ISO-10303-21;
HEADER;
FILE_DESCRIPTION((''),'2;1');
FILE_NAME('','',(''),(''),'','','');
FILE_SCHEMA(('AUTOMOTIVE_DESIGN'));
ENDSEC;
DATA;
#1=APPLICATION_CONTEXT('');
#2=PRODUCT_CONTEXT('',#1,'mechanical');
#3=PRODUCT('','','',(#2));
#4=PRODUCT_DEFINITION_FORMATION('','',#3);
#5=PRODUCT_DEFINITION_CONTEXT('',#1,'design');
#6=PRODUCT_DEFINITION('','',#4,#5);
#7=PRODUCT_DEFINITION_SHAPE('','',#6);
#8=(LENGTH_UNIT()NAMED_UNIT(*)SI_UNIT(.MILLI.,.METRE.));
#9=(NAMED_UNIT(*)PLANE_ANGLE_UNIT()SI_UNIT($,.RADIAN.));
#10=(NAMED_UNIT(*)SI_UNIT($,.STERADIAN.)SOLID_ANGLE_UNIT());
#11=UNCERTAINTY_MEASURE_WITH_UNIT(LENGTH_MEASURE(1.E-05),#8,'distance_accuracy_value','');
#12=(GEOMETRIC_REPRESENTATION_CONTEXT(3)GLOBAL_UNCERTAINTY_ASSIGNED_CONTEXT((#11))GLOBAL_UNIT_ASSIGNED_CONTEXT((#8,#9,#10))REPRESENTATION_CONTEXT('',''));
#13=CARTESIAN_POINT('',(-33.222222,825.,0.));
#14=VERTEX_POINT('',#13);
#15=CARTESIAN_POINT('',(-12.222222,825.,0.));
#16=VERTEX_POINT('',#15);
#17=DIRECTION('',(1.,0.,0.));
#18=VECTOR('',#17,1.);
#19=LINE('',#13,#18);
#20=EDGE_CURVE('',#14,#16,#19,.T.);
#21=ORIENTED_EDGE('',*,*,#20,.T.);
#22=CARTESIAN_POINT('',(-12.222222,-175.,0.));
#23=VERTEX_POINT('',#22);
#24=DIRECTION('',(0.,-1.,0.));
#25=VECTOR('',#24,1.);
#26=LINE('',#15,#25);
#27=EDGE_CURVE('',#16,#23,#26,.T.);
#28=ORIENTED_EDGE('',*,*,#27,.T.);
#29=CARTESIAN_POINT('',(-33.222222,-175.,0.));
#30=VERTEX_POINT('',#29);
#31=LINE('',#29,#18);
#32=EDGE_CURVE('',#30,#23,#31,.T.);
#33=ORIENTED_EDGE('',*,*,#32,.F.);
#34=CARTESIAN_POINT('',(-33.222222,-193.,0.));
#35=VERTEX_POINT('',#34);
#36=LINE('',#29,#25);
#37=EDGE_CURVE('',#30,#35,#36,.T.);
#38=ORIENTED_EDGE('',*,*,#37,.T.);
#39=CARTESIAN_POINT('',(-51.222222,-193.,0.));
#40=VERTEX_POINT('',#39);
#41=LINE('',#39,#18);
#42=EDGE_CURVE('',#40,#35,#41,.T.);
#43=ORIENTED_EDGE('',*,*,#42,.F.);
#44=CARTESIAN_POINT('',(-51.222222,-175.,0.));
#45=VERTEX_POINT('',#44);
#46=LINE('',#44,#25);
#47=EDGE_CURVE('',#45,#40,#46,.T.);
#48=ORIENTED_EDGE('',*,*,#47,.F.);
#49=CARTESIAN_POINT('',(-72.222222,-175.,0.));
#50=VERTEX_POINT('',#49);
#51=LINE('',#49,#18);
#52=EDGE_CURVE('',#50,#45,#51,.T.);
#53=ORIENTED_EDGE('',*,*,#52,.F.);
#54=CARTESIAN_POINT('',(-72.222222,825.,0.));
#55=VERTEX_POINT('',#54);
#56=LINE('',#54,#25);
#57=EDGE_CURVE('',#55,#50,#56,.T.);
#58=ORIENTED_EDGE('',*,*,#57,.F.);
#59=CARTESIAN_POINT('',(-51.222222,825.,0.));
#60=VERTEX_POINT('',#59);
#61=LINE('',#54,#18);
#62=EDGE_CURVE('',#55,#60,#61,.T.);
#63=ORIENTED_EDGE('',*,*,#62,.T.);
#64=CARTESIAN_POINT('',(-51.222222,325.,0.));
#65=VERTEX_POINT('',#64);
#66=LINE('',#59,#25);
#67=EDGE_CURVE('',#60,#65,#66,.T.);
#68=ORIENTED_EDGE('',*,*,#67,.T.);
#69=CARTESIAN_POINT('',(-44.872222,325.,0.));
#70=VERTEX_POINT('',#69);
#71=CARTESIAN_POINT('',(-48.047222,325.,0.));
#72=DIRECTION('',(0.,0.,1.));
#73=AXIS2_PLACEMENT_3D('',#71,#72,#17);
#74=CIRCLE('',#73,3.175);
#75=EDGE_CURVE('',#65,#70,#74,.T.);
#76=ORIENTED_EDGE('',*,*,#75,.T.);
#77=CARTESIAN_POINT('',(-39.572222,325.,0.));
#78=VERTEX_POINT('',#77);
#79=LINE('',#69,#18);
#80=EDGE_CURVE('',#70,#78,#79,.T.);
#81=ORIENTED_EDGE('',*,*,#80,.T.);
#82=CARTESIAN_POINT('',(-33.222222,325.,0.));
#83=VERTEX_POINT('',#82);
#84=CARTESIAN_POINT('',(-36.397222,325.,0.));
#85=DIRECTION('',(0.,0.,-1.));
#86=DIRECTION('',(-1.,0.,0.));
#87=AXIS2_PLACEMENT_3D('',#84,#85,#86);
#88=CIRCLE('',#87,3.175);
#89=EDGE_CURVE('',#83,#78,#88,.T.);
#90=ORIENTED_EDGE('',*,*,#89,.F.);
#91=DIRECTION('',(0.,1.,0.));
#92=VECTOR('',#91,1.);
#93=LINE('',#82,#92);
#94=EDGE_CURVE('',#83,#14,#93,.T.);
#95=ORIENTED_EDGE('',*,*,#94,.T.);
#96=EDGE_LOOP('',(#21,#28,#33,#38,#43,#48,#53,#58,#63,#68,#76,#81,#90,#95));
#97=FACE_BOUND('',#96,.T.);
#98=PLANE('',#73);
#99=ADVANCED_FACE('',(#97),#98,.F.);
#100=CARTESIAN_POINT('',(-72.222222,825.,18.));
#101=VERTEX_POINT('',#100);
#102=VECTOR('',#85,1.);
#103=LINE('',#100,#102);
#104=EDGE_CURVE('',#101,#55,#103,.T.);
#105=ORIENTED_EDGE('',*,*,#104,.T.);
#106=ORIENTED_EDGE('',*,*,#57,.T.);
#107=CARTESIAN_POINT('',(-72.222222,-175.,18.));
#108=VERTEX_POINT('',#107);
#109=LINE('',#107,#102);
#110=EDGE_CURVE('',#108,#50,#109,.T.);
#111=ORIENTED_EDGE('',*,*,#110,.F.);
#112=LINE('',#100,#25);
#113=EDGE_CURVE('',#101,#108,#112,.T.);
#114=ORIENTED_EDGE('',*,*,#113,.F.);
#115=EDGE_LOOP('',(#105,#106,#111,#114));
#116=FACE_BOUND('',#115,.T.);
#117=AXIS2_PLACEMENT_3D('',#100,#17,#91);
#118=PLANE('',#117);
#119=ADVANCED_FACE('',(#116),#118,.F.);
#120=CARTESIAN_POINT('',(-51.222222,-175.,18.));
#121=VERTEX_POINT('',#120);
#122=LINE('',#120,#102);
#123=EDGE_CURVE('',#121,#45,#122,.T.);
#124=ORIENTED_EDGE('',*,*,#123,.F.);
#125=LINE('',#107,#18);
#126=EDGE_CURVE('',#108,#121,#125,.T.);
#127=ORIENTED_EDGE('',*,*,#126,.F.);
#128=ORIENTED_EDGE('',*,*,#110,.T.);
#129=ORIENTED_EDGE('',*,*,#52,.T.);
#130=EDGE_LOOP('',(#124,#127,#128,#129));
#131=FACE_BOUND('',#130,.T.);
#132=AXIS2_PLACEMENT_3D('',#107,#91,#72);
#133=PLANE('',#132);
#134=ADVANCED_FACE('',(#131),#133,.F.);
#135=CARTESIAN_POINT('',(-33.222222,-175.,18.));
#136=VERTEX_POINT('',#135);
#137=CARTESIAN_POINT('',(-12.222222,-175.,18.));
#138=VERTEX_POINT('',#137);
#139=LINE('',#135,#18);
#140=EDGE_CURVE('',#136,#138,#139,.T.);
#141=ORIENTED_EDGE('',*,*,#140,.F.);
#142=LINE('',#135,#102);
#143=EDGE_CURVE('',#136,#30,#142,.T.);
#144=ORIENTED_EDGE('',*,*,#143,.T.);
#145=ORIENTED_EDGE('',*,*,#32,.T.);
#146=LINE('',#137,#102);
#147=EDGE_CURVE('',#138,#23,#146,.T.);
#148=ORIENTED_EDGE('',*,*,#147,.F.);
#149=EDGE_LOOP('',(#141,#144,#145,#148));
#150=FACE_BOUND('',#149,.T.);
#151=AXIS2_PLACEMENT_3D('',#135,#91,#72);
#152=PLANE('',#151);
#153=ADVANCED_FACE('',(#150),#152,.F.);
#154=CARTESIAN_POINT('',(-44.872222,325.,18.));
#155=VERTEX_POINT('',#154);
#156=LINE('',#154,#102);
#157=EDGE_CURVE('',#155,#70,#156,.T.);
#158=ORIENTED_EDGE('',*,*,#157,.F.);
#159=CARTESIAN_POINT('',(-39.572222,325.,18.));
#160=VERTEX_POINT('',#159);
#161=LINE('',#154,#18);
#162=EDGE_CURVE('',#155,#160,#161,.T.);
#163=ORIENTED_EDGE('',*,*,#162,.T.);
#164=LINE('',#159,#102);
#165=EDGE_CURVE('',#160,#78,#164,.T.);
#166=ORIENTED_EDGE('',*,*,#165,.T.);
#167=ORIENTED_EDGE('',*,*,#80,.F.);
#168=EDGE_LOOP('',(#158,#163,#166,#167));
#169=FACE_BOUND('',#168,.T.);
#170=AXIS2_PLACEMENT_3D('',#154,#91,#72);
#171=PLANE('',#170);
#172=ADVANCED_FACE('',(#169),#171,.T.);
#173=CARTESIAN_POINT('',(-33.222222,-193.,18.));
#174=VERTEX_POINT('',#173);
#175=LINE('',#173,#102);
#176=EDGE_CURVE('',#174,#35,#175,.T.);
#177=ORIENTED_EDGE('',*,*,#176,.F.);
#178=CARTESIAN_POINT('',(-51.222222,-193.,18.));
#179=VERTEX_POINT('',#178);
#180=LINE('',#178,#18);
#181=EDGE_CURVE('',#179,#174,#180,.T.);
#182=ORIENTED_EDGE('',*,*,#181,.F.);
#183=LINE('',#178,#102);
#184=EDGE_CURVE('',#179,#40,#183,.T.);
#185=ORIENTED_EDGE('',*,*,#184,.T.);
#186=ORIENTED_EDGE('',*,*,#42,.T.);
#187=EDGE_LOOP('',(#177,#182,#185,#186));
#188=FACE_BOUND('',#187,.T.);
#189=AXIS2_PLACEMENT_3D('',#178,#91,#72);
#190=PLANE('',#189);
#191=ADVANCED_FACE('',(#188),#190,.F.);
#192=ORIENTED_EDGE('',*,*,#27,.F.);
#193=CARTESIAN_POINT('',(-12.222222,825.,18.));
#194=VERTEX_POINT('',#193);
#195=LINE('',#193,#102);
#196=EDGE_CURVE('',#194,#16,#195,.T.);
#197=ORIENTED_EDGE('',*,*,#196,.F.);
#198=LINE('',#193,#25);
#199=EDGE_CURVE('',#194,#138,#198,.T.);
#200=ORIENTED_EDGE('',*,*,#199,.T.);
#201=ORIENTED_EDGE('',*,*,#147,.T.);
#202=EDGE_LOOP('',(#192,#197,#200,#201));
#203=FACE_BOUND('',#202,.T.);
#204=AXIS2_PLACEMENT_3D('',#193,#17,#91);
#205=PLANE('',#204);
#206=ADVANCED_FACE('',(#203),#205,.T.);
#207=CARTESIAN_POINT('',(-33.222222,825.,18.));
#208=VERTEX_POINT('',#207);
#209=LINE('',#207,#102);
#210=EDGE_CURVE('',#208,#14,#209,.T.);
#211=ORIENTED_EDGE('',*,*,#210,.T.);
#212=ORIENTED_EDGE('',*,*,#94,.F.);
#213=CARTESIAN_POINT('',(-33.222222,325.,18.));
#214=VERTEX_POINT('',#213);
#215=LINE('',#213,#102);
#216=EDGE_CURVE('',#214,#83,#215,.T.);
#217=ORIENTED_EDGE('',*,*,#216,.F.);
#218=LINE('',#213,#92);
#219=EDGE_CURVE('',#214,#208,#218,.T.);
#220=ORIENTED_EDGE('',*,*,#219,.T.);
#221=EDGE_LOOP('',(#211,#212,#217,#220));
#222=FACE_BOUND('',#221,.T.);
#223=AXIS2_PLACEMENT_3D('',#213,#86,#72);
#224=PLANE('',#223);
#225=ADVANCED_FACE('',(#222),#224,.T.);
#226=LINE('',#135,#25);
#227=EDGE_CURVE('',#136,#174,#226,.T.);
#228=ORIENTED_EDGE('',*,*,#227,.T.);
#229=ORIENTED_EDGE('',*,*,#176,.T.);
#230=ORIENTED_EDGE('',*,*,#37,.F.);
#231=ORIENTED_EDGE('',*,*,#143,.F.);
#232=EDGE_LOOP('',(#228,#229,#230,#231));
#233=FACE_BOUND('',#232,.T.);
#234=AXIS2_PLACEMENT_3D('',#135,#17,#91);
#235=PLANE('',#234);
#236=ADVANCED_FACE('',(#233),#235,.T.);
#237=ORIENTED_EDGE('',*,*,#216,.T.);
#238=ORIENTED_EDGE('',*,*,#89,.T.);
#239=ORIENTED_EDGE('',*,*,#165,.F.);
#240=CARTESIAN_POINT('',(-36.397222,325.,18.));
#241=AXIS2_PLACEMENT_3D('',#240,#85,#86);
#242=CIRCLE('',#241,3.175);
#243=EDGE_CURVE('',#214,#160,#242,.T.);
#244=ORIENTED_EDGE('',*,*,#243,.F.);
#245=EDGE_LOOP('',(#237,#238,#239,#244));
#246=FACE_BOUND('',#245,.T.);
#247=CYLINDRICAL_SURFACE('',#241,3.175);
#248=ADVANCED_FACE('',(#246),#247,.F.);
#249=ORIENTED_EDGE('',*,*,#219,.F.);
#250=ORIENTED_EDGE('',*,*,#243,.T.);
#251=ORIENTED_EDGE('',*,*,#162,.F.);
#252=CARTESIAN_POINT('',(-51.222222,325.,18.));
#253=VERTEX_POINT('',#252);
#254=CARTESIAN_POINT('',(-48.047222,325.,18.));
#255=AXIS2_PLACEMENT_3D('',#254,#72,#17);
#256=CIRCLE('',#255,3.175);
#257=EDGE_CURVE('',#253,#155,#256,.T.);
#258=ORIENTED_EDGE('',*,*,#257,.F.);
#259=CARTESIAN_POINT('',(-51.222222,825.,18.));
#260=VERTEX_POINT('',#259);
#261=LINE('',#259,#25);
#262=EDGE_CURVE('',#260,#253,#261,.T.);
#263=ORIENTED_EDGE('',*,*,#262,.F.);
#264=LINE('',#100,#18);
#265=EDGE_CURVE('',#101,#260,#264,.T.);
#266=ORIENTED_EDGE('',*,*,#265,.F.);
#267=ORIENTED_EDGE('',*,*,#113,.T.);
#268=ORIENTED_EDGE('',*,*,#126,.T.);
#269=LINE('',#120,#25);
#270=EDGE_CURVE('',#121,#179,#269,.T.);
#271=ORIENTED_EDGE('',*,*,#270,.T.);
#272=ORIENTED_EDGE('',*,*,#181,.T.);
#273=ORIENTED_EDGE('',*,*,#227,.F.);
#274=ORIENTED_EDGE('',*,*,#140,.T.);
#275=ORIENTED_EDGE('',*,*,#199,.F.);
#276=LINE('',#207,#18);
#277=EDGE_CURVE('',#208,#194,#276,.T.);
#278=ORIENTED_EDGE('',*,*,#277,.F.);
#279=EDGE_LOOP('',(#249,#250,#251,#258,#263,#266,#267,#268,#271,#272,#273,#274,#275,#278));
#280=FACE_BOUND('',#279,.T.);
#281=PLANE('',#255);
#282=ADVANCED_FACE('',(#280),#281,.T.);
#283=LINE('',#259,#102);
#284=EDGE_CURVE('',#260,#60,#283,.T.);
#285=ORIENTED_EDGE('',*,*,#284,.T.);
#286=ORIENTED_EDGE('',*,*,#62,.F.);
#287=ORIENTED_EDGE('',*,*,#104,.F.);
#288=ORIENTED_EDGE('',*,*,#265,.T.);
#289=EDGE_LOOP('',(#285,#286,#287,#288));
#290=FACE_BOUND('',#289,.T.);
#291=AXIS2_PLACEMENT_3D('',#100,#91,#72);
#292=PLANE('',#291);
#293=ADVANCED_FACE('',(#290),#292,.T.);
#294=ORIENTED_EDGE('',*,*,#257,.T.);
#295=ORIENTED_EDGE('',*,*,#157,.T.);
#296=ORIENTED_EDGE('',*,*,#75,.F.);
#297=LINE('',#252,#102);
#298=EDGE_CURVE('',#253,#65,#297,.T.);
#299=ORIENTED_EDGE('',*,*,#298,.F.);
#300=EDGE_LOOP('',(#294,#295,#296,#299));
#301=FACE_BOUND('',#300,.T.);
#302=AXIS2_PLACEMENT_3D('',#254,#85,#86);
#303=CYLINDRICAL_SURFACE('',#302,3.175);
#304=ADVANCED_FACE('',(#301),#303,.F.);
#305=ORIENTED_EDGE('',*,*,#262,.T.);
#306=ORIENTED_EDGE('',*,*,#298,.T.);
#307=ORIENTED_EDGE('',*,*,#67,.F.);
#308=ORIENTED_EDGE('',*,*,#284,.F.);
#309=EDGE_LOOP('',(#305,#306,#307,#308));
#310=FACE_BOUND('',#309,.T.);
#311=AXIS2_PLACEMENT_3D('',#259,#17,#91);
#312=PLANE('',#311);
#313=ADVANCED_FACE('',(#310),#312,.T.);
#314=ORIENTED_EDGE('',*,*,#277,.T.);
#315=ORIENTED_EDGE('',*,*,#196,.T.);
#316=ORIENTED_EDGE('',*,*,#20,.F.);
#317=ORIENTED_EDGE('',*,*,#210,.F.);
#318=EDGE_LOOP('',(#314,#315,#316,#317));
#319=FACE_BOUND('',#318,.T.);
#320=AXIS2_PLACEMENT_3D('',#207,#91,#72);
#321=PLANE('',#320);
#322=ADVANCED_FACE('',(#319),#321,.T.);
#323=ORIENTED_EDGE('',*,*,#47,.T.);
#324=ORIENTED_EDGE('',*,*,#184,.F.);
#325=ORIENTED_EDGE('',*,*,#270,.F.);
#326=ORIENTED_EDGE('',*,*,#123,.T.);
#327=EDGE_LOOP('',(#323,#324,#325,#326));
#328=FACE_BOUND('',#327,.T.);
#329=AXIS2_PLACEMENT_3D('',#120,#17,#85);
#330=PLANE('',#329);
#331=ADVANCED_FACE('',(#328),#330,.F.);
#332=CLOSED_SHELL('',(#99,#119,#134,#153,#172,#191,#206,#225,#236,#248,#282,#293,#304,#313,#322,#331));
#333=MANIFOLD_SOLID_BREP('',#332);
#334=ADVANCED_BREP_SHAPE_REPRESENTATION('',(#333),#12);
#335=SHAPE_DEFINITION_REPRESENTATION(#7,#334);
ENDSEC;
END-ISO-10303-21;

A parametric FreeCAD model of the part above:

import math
import FreeCAD as App
import Part
import Sketcher
from FreeCAD import Vector

doc = App.newDocument("Part")
body = doc.addObject("PartDesign::Body", "Body")

sketch1 = doc.addObject("Sketcher::SketchObject", "Sketch")
body.addObject(sketch1)
sketch1.AttachmentSupport = (doc.XY_Plane, [""])
sketch1.MapMode = "FlatFace"
sketch1.addGeometry([
    Part.LineSegment(Vector(-51.222222, 325, 0), Vector(-51.222222, 825, 0)),
    Part.LineSegment(Vector(-51.222222, 825, 0), Vector(-72.222222, 825, 0)),
    Part.LineSegment(Vector(-72.222222, 825, 0), Vector(-72.222222, -175, 0)),
    Part.LineSegment(Vector(-72.222222, -175, 0), Vector(-51.222222, -175, 0)),
    Part.LineSegment(Vector(-51.222222, -175, 0), Vector(-51.222222, -193, 0)),
    Part.LineSegment(Vector(-51.222222, -193, 0), Vector(-33.222222, -193, 0)),
    Part.LineSegment(Vector(-33.222222, -193, 0), Vector(-33.222222, -175, 0)),
    Part.LineSegment(Vector(-33.222222, -175, 0), Vector(-12.222222, -175, 0)),
    Part.LineSegment(Vector(-12.222222, -175, 0), Vector(-12.222222, 825, 0)),
    Part.LineSegment(Vector(-12.222222, 825, 0), Vector(-33.222222, 825, 0)),
    Part.LineSegment(Vector(-33.222222, 825, 0), Vector(-33.222222, 325, 0)),
    Part.ArcOfCircle(Part.Circle(Vector(-36.397222, 325, 0), Vector(0, 0, 1), 3.175), math.radians(180), math.radians(360)),
    Part.LineSegment(Vector(-39.572222, 325, 0), Vector(-44.872222, 325, 0)),
    Part.ArcOfCircle(Part.Circle(Vector(-48.047222, 325, 0), Vector(0, 0, 1), 3.175), math.radians(180), math.radians(360)),
], False)
sketch1.addConstraint([
    Sketcher.Constraint("Coincident", 0, 2, 1, 1),
    Sketcher.Constraint("Coincident", 1, 2, 2, 1),
    Sketcher.Constraint("Coincident", 2, 2, 3, 1),
    Sketcher.Constraint("Coincident", 3, 2, 4, 1),
    Sketcher.Constraint("Coincident", 4, 2, 5, 1),
    Sketcher.Constraint("Coincident", 5, 2, 6, 1),
    Sketcher.Constraint("Coincident", 6, 2, 7, 1),
    Sketcher.Constraint("Coincident", 7, 2, 8, 1),
    Sketcher.Constraint("Coincident", 8, 2, 9, 1),
    Sketcher.Constraint("Coincident", 9, 2, 10, 1),
    Sketcher.Constraint("Tangent", 10, 2, 11, 2),
    Sketcher.Constraint("Coincident", 11, 1, 12, 1),
    Sketcher.Constraint("Coincident", 12, 2, 13, 2),
    Sketcher.Constraint("Tangent", 13, 1, 0, 1),
    Sketcher.Constraint("Vertical", 0),
    Sketcher.Constraint("Horizontal", 1),
    Sketcher.Constraint("Vertical", 2),
    Sketcher.Constraint("Horizontal", 3),
    Sketcher.Constraint("Vertical", 4),
    Sketcher.Constraint("Horizontal", 5),
    Sketcher.Constraint("Vertical", 6),
    Sketcher.Constraint("Horizontal", 7),
    Sketcher.Constraint("Vertical", 8),
    Sketcher.Constraint("Horizontal", 9),
    Sketcher.Constraint("Vertical", 10),
    Sketcher.Constraint("Horizontal", 12),
    Sketcher.Constraint("Equal", 11, 13),
    Sketcher.Constraint("Horizontal", 11, 3, 13, 3),
    Sketcher.Constraint("Horizontal", 3, 2, 6, 2),
    Sketcher.Constraint("Horizontal", 1, 2, 8, 2),
    Sketcher.Constraint("Horizontal", 10, 2, 11, 1),
    Sketcher.Constraint("Vertical", 0, 2, 3, 2),
    Sketcher.Constraint("Vertical", 6, 2, 9, 2),
    Sketcher.Constraint("Equal", 3, 7),
    Sketcher.Constraint("Equal", 5, 4),
    Sketcher.Constraint("DistanceX", 1, 2, 1, 1, 21.0),
    Sketcher.Constraint("DistanceX", 5, 1, 5, 2, 18.0),
    Sketcher.Constraint("DistanceY", 0, 1, 0, 2, 500.0),
    Sketcher.Constraint("DistanceY", 2, 2, 2, 1, 1000.0),
    Sketcher.Constraint("DistanceX", 12, 2, 12, 1, 5.3),
    Sketcher.Constraint("DistanceY", -1, 1, 11, 3, 325.0),
    Sketcher.Constraint("DistanceX", 11, 3, -1, 1, 36.397222),
])
pad1 = doc.addObject("PartDesign::Pad", "Pad")
body.addObject(pad1)
pad1.Profile = sketch1
pad1.Length = 18

doc.recompute()
